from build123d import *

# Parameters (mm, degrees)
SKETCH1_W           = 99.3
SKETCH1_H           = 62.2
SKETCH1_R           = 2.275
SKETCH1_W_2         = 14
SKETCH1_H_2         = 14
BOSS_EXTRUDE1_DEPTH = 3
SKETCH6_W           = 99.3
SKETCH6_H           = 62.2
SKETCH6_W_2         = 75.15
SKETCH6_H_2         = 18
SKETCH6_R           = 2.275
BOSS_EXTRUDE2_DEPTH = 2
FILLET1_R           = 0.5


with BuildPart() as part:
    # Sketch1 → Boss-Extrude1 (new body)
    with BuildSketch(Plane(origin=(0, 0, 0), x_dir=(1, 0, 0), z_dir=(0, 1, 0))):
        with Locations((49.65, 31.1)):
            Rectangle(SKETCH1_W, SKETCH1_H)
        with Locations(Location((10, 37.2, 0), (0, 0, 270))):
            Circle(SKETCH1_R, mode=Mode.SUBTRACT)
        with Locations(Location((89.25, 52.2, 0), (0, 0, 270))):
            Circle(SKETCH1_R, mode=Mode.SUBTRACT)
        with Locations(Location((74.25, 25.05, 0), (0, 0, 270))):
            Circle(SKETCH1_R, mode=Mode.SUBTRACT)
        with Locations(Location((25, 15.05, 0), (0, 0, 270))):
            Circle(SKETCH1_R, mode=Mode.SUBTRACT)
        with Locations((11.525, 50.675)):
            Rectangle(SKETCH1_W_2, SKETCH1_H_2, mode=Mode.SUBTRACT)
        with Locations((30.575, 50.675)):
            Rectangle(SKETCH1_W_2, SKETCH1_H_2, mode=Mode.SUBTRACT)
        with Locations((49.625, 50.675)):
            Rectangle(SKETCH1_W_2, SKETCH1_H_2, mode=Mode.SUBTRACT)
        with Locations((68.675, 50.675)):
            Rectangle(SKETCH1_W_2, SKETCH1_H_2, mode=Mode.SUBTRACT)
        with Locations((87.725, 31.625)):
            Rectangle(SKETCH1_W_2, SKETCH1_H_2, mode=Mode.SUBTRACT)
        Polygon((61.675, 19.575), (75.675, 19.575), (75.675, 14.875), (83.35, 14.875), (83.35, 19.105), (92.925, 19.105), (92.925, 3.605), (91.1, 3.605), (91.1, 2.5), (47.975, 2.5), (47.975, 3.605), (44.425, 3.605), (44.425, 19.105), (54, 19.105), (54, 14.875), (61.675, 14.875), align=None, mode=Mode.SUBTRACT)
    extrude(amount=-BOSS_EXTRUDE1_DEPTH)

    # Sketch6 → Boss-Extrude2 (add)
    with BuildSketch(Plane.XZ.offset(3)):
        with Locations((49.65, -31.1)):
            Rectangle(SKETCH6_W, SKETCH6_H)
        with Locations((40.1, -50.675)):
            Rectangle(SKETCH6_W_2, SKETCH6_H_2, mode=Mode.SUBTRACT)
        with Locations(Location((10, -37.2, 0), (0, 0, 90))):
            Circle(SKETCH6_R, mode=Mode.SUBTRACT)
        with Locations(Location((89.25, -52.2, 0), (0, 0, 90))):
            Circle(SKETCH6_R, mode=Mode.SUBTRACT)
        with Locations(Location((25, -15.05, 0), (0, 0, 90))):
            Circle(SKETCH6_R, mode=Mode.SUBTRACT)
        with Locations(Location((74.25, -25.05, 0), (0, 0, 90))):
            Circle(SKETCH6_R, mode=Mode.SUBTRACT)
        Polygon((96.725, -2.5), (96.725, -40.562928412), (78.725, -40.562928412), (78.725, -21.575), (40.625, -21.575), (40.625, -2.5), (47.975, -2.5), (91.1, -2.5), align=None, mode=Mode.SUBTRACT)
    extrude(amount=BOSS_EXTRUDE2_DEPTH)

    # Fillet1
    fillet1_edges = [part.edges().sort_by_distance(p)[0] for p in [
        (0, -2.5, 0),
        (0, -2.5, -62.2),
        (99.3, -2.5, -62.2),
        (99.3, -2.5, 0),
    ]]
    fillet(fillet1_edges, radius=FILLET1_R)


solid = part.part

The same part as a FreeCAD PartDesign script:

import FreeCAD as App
import Part
import Sketcher

V = App.Vector


def edges_at(feature, points):
    """Names of the edges that pass closest to the given points."""
    edges = feature.Shape.Edges
    near = lambda p: min(range(len(edges)), key=lambda i: edges[i].distToShape(Part.Vertex(*p))[0])
    return sorted({f"Edge{near(p) + 1}" for p in points})


def add_polygon(sketch, points):
    """Adds a closed chain of lines whose ends are joined by coincident constraints."""
    first, n = sketch.GeometryCount, len(points)
    for a, b in zip(points, points[1:] + points[:1]):
        sketch.addGeometry(Part.LineSegment(App.Vector(*a, 0), App.Vector(*b, 0)), False)
    for i in range(n):
        sketch.addConstraint(Sketcher.Constraint("Coincident", first + i, 2, first + (i + 1) % n, 1))

doc = App.newDocument("Part")
body = doc.addObject("PartDesign::Body", "Body")

# Sketch on XZ plane
sketch1 = body.newObject("Sketcher::SketchObject", "Sketch")
sketch1.AttachmentSupport = (doc.getObject("XZ_Plane"), [""])
sketch1.MapMode = "FlatFace"
add_polygon(sketch1, [(0, -62.2), (0, 0), (99.3, 0), (99.3, -62.2)])  # lines 0-3
sketch1.addGeometry(Part.Circle(V(25, -15.1, 0), V(0, 0, 1), 2.3), False)  # 4
add_polygon(sketch1, [(61.7, -14.9), (61.7, -19.6), (75.7, -19.6), (75.7, -14.9), (83.3, -14.9), (83.3, -19.1), (92.9, -19.1), (92.9, -3.6), (91.1, -3.6), (91.1, -2.5), (48, -2.5), (48, -3.6), (44.4, -3.6), (44.4, -19.1), (54, -19.1), (54, -14.9)])  # lines 5-20
sketch1.addGeometry(Part.Circle(V(74.2, -25.1, 0), V(0, 0, 1), 2.3), False)  # 21
sketch1.addGeometry(Part.Circle(V(10, -37.2, 0), V(0, 0, 1), 2.3), False)  # 22
add_polygon(sketch1, [(18.5, -43.7), (4.5, -43.7), (4.5, -57.7), (18.5, -57.7)])  # lines 23-26
add_polygon(sketch1, [(37.6, -43.7), (23.6, -43.7), (23.6, -57.7), (37.6, -57.7)])  # lines 27-30
add_polygon(sketch1, [(94.7, -24.6), (80.7, -24.6), (80.7, -38.6), (94.7, -38.6)])  # lines 31-34
add_polygon(sketch1, [(56.6, -43.7), (42.6, -43.7), (42.6, -57.7), (56.6, -57.7)])  # lines 35-38
add_polygon(sketch1, [(75.7, -43.7), (61.7, -43.7), (61.7, -57.7), (75.7, -57.7)])  # lines 39-42
sketch1.addGeometry(Part.Circle(V(89.2, -52.2, 0), V(0, 0, 1), 2.3), False)  # 43
sketch1.addConstraint([
    Sketcher.Constraint("Vertical", 0),
    Sketcher.Constraint("Horizontal", 1),
    Sketcher.Constraint("Vertical", 2),
    Sketcher.Constraint("Horizontal", 3),
    Sketcher.Constraint("Vertical", 5),
    Sketcher.Constraint("Horizontal", 6),
    Sketcher.Constraint("Vertical", 7),
    Sketcher.Constraint("Horizontal", 8),
    Sketcher.Constraint("Vertical", 9),
    Sketcher.Constraint("Horizontal", 10),
    Sketcher.Constraint("Vertical", 11),
    Sketcher.Constraint("Horizontal", 12),
    Sketcher.Constraint("Vertical", 13),
    Sketcher.Constraint("Horizontal", 14),
    Sketcher.Constraint("Vertical", 15),
    Sketcher.Constraint("Horizontal", 16),
    Sketcher.Constraint("Vertical", 17),
    Sketcher.Constraint("Horizontal", 18),
    Sketcher.Constraint("Vertical", 19),
    Sketcher.Constraint("Horizontal", 20),
    Sketcher.Constraint("Horizontal", 23),
    Sketcher.Constraint("Vertical", 24),
    Sketcher.Constraint("Horizontal", 25),
    Sketcher.Constraint("Vertical", 26),
    Sketcher.Constraint("Horizontal", 27),
    Sketcher.Constraint("Vertical", 28),
    Sketcher.Constraint("Horizontal", 29),
    Sketcher.Constraint("Vertical", 30),
    Sketcher.Constraint("Horizontal", 31),
    Sketcher.Constraint("Vertical", 32),
    Sketcher.Constraint("Horizontal", 33),
    Sketcher.Constraint("Vertical", 34),
    Sketcher.Constraint("Horizontal", 35),
    Sketcher.Constraint("Vertical", 36),
    Sketcher.Constraint("Horizontal", 37),
    Sketcher.Constraint("Vertical", 38),
    Sketcher.Constraint("Horizontal", 39),
    Sketcher.Constraint("Vertical", 40),
    Sketcher.Constraint("Horizontal", 41),
    Sketcher.Constraint("Vertical", 42),
    Sketcher.Constraint("Coincident", 0, 2, -1, 1),
    Sketcher.Constraint("Equal", 4, 21),
    Sketcher.Constraint("Equal", 21, 22),
    Sketcher.Constraint("Equal", 22, 43),
    Sketcher.Constraint("Horizontal", 12, 2, 15, 2),
    Sketcher.Constraint("Horizontal", 10, 2, 17, 2),
    Sketcher.Constraint("Horizontal", 8, 2, 19, 2),
    Sketcher.Constraint("Horizontal", 26, 2, 27, 2),
    Sketcher.Constraint("Horizontal", 25, 2, 28, 2),
    Sketcher.Constraint("Horizontal", 30, 2, 35, 2),
    Sketcher.Constraint("Horizontal", 29, 2, 36, 2),
    Sketcher.Constraint("Horizontal", 38, 2, 39, 2),
    Sketcher.Constraint("Horizontal", 37, 2, 40, 2),
    Sketcher.Constraint("Vertical", 20, 2, 39, 2),
    Sketcher.Constraint("Vertical", 7, 2, 41, 2),
    Sketcher.Constraint("Equal", 10, 18),
    Sketcher.Constraint("Equal", 8, 20),
    Sketcher.Constraint("Equal", 6, 23),
    Sketcher.Constraint("Equal", 25, 27),
    Sketcher.Constraint("Equal", 29, 31),
    Sketcher.Constraint("Equal", 33, 35),
    Sketcher.Constraint("Equal", 41, 24),
    Sketcher.Constraint("Equal", 30, 32),
    Sketcher.Constraint("Diameter", 4, 4.55),
    Sketcher.Constraint("DistanceX", 6, 1, 6, 2, 14.0),
    Sketcher.Constraint("DistanceX", 1, 1, 1, 2, 99.3),
    Sketcher.Constraint("DistanceY", 0, 1, 0, 2, 62.2),
    Sketcher.Constraint("DistanceY", 5, 2, 5, 1, 4.7),
    Sketcher.Constraint("DistanceY", 11, 1, 11, 2, 15.5),
    Sketcher.Constraint("DistanceX", -1, 1, 4, 3, 25.0),
    Sketcher.Constraint("DistanceX", -1, 1, 22, 3, 10.0),
    Sketcher.Constraint("DistanceX", -1, 1, 18, 2, 54.0),
    Sketcher.Constraint("DistanceY", 21, 3, 4, 3, 10.0),
    Sketcher.Constraint("DistanceX", 21, 3, 43, 3, 15.0),
    Sketcher.Constraint("DistanceY", 43, 3, 22, 3, 15.0),
    Sketcher.Constraint("DistanceY", 2, 2, 43, 3, 10.0),
    Sketcher.Constraint("DistanceX", 16, 2, 16, 1, 3.55),
    Sketcher.Constraint("DistanceY", 9, 2, 9, 1, 4.23),
    Sketcher.Constraint("DistanceX", -1, 1, 12, 2, 91.1),
    Sketcher.Constraint("DistanceY", 13, 2, -1, 1, 2.5),
    Sketcher.Constraint("DistanceX", 21, 3, 8, 2, 9.1),
    Sketcher.Constraint("DistanceX", 14, 2, 5, 2, 13.7),
    Sketcher.Constraint("DistanceX", 23, 2, 17, 2, 39.9),
    Sketcher.Constraint("DistanceX", 10, 2, 33, 2, 1.8),
    Sketcher.Constraint("DistanceX", 26, 2, 35, 2, 24.1),
    Sketcher.Constraint("DistanceX", 8, 1, 8, 2, 7.675),
    Sketcher.Constraint("DistanceY", 13, 1, 13, 2, 1.105),
    Sketcher.Constraint("DistanceY", 4, 3, -1, 1, 15.05),
    Sketcher.Constraint("DistanceY", 23, 2, 17, 2, 24.57),
    Sketcher.Constraint("DistanceX", 26, 2, 27, 2, 5.05),
    Sketcher.Constraint("DistanceY", 31, 2, 9, 2, 5.52),
])
pad1 = body.newObject("PartDesign::Pad", "Pad")
pad1.Profile = sketch1
pad1.Length = 3

# Sketch on XZ plane
sketch2 = body.newObject("Sketcher::SketchObject", "Sketch001")
sketch2.AttachmentSupport = (doc.getObject("XZ_Plane"), [""])
sketch2.MapMode = "FlatFace"
sketch2.AttachmentOffset = App.Placement(V(0, 0, 3), App.Rotation())
add_polygon(sketch2, [(0, 0), (0, -62.2), (99.3, -62.2), (99.3, 0)])  # lines 0-3
add_polygon(sketch2, [(77.7, -59.7), (2.5, -59.7), (2.5, -41.7), (77.7, -41.7)])  # lines 4-7
sketch2.addGeometry(Part.Circle(V(10, -37.2, 0), V(0, 0, 1), 2.3), False)  # 8
sketch2.addGeometry(Part.Circle(V(89.2, -52.2, 0), V(0, 0, 1), 2.3), False)  # 9
sketch2.addGeometry(Part.Circle(V(25, -15.1, 0), V(0, 0, 1), 2.3), False)  # 10
add_polygon(sketch2, [(40.6, -2.5), (96.7, -2.5), (96.7, -40.6), (78.7, -40.6), (78.7, -21.6), (40.6, -21.6)])  # lines 11-16
sketch2.addGeometry(Part.Circle(V(74.2, -25.1, 0), V(0, 0, 1), 2.3), False)  # 17
sketch2.addConstraint([
    Sketcher.Constraint("Vertical", 0),
    Sketcher.Constraint("Horizontal", 1),
    Sketcher.Constraint("Vertical", 2),
    Sketcher.Constraint("Horizontal", 3),
    Sketcher.Constraint("Horizontal", 4),
    Sketcher.Constraint("Vertical", 5),
    Sketcher.Constraint("Horizontal", 6),
    Sketcher.Constraint("Vertical", 7),
    Sketcher.Constraint("Horizontal", 11),
    Sketcher.Constraint("Vertical", 12),
    Sketcher.Constraint("Horizontal", 13),
    Sketcher.Constraint("Vertical", 14),
    Sketcher.Constraint("Horizontal", 15),
    Sketcher.Constraint("Vertical", 16),
    Sketcher.Constraint("Coincident", 3, 2, -1, 1),
    Sketcher.Constraint("Equal", 8, 9),
    Sketcher.Constraint("Equal", 9, 10),
    Sketcher.Constraint("Equal", 10, 17),
    Sketcher.Constraint("Equal", 13, 5),
    Sketcher.Constraint("Diameter", 8, 4.55),
    Sketcher.Constraint("DistanceX", 13, 2, 13, 1, 18.0),
    Sketcher.Constraint("DistanceX", 1, 1, 1, 2, 99.3),
    Sketcher.Constraint("DistanceX", 11, 1, 11, 2, 56.1),
    Sketcher.Constraint("DistanceY", 0, 2, 0, 1, 62.2),
    Sketcher.Constraint("DistanceX", -1, 1, 8, 3, 10.0),
    Sketcher.Constraint("DistanceX", -1, 1, 10, 3, 25.0),
    Sketcher.Constraint("DistanceY", 9, 3, 8, 3, 15.0),
    Sketcher.Constraint("DistanceX", 17, 3, 9, 3, 15.0),
    Sketcher.Constraint("DistanceY", 17, 3, 10, 3, 10.0),
    Sketcher.Constraint("DistanceY", 0, 2, 8, 3, 25.0),
    Sketcher.Constraint("DistanceX", 4, 2, 4, 1, 75.15),
    Sketcher.Constraint("DistanceY", 11, 2, -1, 1, 2.5),
    Sketcher.Constraint("DistanceY", 6, 2, 14, 2, 20.1),
    Sketcher.Constraint("DistanceY", 16, 1, 16, 2, 19.075),
    Sketcher.Constraint("DistanceX", -1, 1, 9, 3, 89.25),
    Sketcher.Constraint("DistanceY", 10, 3, -1, 1, 15.05),
    Sketcher.Constraint("DistanceX", 6, 2, 11, 2, 19.05),
    Sketcher.Constraint("DistanceX", -1, 1, 4, 2, 2.525),
    Sketcher.Constraint("DistanceY", 12, 2, 12, 1, 38.062928),
])
pad2 = body.newObject("PartDesign::Pad", "Pad001")
pad2.Profile = sketch2
pad2.Length = 2
doc.recompute()

fillet = body.newObject("PartDesign::Fillet", "Fillet")
fillet.Base = (pad2, edges_at(pad2, [
    (0, -2.5, 0),
    (0, -2.5, -62.2),
    (99.3, -2.5, -62.2),
    (99.3, -2.5, 0),
]))
fillet.Radius = 0.5

doc.recompute()
